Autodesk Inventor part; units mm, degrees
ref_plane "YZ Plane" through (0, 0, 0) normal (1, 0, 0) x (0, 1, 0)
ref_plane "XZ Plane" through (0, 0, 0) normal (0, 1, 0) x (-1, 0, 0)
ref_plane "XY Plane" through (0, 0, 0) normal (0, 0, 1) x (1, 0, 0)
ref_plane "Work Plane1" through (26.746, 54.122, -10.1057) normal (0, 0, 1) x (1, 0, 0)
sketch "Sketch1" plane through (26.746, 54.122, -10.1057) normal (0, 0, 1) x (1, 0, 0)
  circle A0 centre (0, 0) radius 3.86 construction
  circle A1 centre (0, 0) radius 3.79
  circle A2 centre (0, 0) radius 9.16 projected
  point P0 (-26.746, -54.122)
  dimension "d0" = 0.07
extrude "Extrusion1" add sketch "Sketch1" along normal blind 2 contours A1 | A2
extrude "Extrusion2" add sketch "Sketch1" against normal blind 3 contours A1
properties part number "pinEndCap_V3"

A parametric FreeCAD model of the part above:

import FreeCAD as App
import Part
import Sketcher
from FreeCAD import Vector
Q = App.Units.Quantity

doc = App.newDocument("Part")
body = doc.addObject("PartDesign::Body", "Body")

# Sketch on XY plane
sketch1 = body.newObject("Sketcher::SketchObject", "Sketch")
sketch1.AttachmentSupport = (doc.getObject("XY_Plane"), [""])
sketch1.MapMode = "FlatFace"
sketch1.AttachmentOffset = App.Placement(Vector(0, 0, -10.1057), App.Rotation())
sketch1.addGeometry(Part.Circle(Vector(27, 54, 0), Vector(0, 0, 1), 9), False)
sketch1.addConstraint(Sketcher.Constraint("Diameter", 0, Q("18.32 mm")))
sketch1.addConstraint(Sketcher.Constraint("DistanceX", -1, 1, 0, 3, Q("26.746 mm")))
sketch1.addConstraint(Sketcher.Constraint("DistanceY", -1, 1, 0, 3, Q("54.122 mm")))
pad1 = body.newObject("PartDesign::Pad", "Pad")
pad1.Profile = sketch1
pad1.Length = 2

# Sketch on XY plane
sketch2 = body.newObject("Sketcher::SketchObject", "Sketch001")
sketch2.AttachmentSupport = (doc.getObject("XY_Plane"), [""])
sketch2.MapMode = "FlatFace"
sketch2.AttachmentOffset = App.Placement(Vector(0, 0, -10.1057), App.Rotation())
sketch2.addGeometry(Part.Circle(Vector(26.7, 54.1, 0), Vector(0, 0, 1), 3.8), False)
sketch2.addConstraint(Sketcher.Constraint("Diameter", 0, Q("7.58 mm")))
sketch2.addConstraint(Sketcher.Constraint("DistanceX", -1, 1, 0, 3, Q("26.746 mm")))
sketch2.addConstraint(Sketcher.Constraint("DistanceY", -1, 1, 0, 3, Q("54.122 mm")))
pad2 = body.newObject("PartDesign::Pad", "Pad001")
pad2.Profile = sketch2
pad2.Length = 3
pad2.Reversed = True

doc.recompute()
